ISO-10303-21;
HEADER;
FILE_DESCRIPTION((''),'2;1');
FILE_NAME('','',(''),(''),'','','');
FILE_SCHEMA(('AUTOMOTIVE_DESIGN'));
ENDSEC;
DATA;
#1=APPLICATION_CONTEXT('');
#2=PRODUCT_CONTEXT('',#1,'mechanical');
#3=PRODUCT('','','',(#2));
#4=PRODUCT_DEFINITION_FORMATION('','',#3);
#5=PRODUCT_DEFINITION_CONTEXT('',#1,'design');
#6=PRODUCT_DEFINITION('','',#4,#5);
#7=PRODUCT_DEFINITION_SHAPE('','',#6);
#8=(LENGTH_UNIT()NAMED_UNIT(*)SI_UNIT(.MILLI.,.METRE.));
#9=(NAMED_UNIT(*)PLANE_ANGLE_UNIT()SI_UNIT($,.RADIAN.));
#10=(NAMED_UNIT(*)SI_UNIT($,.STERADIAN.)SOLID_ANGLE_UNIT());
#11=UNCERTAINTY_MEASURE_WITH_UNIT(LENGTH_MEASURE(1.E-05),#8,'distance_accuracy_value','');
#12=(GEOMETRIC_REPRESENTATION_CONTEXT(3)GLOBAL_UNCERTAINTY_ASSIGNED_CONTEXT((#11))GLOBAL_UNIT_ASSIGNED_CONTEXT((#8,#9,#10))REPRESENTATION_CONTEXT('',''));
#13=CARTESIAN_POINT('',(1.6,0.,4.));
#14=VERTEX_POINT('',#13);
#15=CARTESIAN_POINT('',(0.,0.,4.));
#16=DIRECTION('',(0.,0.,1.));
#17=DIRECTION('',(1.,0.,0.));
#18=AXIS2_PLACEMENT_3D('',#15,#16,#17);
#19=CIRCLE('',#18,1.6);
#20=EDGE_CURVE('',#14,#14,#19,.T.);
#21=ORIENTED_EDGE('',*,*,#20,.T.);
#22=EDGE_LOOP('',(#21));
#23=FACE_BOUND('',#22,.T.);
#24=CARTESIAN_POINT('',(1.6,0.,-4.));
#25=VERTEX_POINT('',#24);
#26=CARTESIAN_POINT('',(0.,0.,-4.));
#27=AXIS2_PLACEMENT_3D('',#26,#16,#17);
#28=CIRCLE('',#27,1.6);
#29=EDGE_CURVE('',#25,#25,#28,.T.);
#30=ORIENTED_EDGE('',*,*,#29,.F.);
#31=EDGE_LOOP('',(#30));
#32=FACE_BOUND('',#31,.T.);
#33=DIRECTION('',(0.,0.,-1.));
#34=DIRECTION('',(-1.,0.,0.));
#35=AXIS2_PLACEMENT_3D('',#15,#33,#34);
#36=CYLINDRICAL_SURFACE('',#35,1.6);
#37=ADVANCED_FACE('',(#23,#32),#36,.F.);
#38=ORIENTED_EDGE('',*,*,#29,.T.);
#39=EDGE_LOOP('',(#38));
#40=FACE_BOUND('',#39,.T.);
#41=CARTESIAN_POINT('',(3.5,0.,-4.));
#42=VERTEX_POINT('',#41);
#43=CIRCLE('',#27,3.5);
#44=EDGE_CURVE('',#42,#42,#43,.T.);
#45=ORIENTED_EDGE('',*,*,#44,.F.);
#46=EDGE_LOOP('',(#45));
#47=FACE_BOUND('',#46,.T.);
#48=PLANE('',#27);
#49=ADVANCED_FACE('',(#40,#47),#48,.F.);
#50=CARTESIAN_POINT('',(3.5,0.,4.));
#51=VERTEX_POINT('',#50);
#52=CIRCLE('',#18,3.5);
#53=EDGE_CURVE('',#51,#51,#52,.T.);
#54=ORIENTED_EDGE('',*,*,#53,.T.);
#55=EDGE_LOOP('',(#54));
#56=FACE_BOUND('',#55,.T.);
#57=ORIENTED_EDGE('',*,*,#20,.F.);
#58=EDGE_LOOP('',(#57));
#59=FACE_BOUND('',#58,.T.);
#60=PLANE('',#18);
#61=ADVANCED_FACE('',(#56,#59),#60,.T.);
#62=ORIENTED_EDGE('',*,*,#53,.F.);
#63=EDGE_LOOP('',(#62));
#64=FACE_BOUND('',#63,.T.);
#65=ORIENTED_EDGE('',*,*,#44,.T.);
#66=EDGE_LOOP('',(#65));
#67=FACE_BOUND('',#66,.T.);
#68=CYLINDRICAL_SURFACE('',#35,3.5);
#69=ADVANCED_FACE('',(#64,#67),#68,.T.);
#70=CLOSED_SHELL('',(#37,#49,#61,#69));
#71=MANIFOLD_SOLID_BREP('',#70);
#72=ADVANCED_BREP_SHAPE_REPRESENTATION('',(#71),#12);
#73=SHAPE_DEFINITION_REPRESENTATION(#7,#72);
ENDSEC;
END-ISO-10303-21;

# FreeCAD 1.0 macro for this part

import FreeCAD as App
import Part
import Sketcher
from FreeCAD import Vector
Q = App.Units.Quantity

doc = App.newDocument("Part")
body = doc.addObject("PartDesign::Body", "Body")

sketch1 = doc.addObject("Sketcher::SketchObject", "Sketch")
body.addObject(sketch1)
sketch1.AttachmentSupport = (doc.XY_Plane, [""])
sketch1.MapMode = "FlatFace"
sketch1.addGeometry([
    Part.Circle(Vector(0, 0, 0), Vector(0, 0, 1), 3.5),
    Part.Circle(Vector(0, 0, 0), Vector(0, 0, 1), 1.6),
], False)
sketch1.addConstraint([
    Sketcher.Constraint("Coincident", 0, 3, -1, 1),
    Sketcher.Constraint("Coincident", 1, 3, -1, 1),
    Sketcher.Constraint("Diameter", 0, Q("7 mm")),
    Sketcher.Constraint("Diameter", 1, Q("3.2 mm")),
])
pad1 = doc.addObject("PartDesign::Pad", "Pad")
body.addObject(pad1)
pad1.Profile = sketch1
pad1.Length = 8
pad1.Midplane = True

doc.recompute()
